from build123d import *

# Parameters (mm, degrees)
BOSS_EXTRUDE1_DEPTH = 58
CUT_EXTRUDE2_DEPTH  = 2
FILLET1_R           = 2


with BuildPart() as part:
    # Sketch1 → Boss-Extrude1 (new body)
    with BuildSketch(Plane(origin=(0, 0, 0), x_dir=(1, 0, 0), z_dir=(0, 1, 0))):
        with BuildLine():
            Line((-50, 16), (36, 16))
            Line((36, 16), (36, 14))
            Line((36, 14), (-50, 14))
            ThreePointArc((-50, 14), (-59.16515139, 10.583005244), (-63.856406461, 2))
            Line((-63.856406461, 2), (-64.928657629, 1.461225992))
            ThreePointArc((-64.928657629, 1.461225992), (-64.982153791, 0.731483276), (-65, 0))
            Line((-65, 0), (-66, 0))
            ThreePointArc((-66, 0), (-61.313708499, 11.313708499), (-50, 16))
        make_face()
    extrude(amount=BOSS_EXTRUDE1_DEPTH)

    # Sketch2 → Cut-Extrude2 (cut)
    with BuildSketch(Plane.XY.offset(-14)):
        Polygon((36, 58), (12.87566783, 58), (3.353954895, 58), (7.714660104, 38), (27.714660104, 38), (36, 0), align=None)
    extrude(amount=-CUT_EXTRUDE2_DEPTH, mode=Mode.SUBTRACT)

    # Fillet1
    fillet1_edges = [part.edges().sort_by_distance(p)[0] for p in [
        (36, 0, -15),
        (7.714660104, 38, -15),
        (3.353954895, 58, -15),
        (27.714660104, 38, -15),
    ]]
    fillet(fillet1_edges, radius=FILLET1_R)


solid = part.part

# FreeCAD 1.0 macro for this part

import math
import FreeCAD as App
import Part
import Sketcher

V = App.Vector
Q = App.Units.Quantity


def edges_at(feature, points):
    """Names of the edges that pass closest to the given points."""
    edges = feature.Shape.Edges
    near = lambda p: min(range(len(edges)), key=lambda i: edges[i].distToShape(Part.Vertex(*p))[0])
    return sorted({f"Edge{near(p) + 1}" for p in points})

doc = App.newDocument("Part")
body = doc.addObject("PartDesign::Body", "Body")

# Sketch on XZ plane
sketch1 = doc.addObject("Sketcher::SketchObject", "Sketch")
body.addObject(sketch1)
sketch1.AttachmentSupport = (doc.XZ_Plane, [""])
sketch1.MapMode = "FlatFace"
sketch1.addGeometry([
    Part.LineSegment(V(36, -16, 0), V(-50, -16, 0)),  # 0
    Part.ArcOfCircle(Part.Circle(V(-50, 0, 0), V(0, 0, 1), 16), math.radians(180), math.radians(270)),  # 1
    Part.LineSegment(V(-66, 0, 0), V(-65, 0, 0)),  # 2
    Part.ArcOfCircle(Part.Circle(V(-50, 0, 0), V(0, 0, 1), 15), math.radians(-180), math.radians(-174.409662)),  # 3
    Part.LineSegment(V(-64.928658, -1.461226, 0), V(-63.856406, -2, 0)),  # 4
    Part.ArcOfCircle(Part.Circle(V(-50, 0, 0), V(0, 0, 1), 14), math.radians(-171.786789), math.radians(-90)),  # 5
    Part.LineSegment(V(-50, -14, 0), V(36, -14, 0)),  # 6
    Part.LineSegment(V(36, -14, 0), V(36, -16, 0)),  # 7
], False)
sketch1.addConstraint([
    Sketcher.Constraint("Tangent", 0, 2, 1, 2),
    Sketcher.Constraint("Coincident", 1, 1, 2, 1),
    Sketcher.Constraint("Coincident", 2, 2, 3, 1),
    Sketcher.Constraint("Coincident", 3, 2, 4, 1),
    Sketcher.Constraint("Coincident", 4, 2, 5, 1),
    Sketcher.Constraint("Tangent", 5, 2, 6, 1),
    Sketcher.Constraint("Coincident", 6, 2, 7, 1),
    Sketcher.Constraint("Coincident", 7, 2, 0, 1),
    Sketcher.Constraint("Horizontal", 0),
    Sketcher.Constraint("Horizontal", 2),
    Sketcher.Constraint("Horizontal", 6),
    Sketcher.Constraint("Vertical", 7),
    Sketcher.Constraint("Coincident", 3, 3, 1, 3),
    Sketcher.Constraint("Coincident", 5, 3, 1, 3),
    Sketcher.Constraint("PointOnObject", 1, 3, -1),
    Sketcher.Constraint("PointOnObject", 1, 1, -1),
    Sketcher.Constraint("Radius", 1, Q("16 mm")),
    Sketcher.Constraint("Radius", 3, Q("15 mm")),
    Sketcher.Constraint("Radius", 5, Q("14 mm")),
    Sketcher.Constraint("DistanceX", 0, 2, 0, 1, Q("86 mm")),
    Sketcher.Constraint("DistanceX", 1, 3, -1, 1, Q("50 mm")),
    Sketcher.Constraint("DistanceY", 4, 2, -1, 1, Q("2 mm")),
    Sketcher.Constraint("Distance", 4, Q("1.2 mm")),
])
pad1 = doc.addObject("PartDesign::Pad", "Pad")
body.addObject(pad1)
pad1.Profile = sketch1
pad1.Length = 58
pad1.Reversed = True

# Sketch on XY plane
sketch2 = doc.addObject("Sketcher::SketchObject", "Sketch001")
body.addObject(sketch2)
sketch2.AttachmentSupport = (doc.XY_Plane, [""])
sketch2.MapMode = "FlatFace"
sketch2.AttachmentOffset = App.Placement(V(0, 0, -14), App.Rotation())
sketch2.addGeometry([
    Part.LineSegment(V(36, 58, 0), V(3.353955, 58, 0)),  # 0
    Part.LineSegment(V(3.353955, 58, 0), V(7.71466, 38, 0)),  # 1
    Part.LineSegment(V(7.71466, 38, 0), V(27.71466, 38, 0)),  # 2
    Part.LineSegment(V(27.71466, 38, 0), V(36, 0, 0)),  # 3
    Part.LineSegment(V(36, 0, 0), V(36, 58, 0)),  # 4
], False)
sketch2.addConstraint([
    Sketcher.Constraint("Coincident", 0, 2, 1, 1),
    Sketcher.Constraint("Coincident", 1, 2, 2, 1),
    Sketcher.Constraint("Coincident", 2, 2, 3, 1),
    Sketcher.Constraint("Coincident", 3, 2, 4, 1),
    Sketcher.Constraint("Coincident", 4, 2, 0, 1),
    Sketcher.Constraint("Horizontal", 0),
    Sketcher.Constraint("Horizontal", 2),
    Sketcher.Constraint("Vertical", 4),
    Sketcher.Constraint("PointOnObject", 3, 2, -1),
    Sketcher.Constraint("Parallel", 1, 3),
    Sketcher.Constraint("DistanceX", 2, 1, 2, 2, Q("20 mm")),
    Sketcher.Constraint("DistanceY", 4, 1, 4, 2, Q("58 mm")),
    Sketcher.Constraint("DistanceY", -1, 1, 1, 2, Q("38 mm")),
    Sketcher.Constraint("DistanceX", -1, 1, 3, 2, Q("36 mm")),
    Sketcher.Constraint("Angle", 1, Q("-77.7 deg")),
])
pocket1 = doc.addObject("PartDesign::Pocket", "Pocket")
body.addObject(pocket1)
pocket1.Profile = sketch2
pocket1.Length = 2
doc.recompute()

fillet = doc.addObject("PartDesign::Fillet", "Fillet")
body.addObject(fillet)
fillet.Base = (pocket1, edges_at(pocket1, [
    (36, 0, -15),
    (7.715, 38, -15),
    (3.354, 58, -15),
    (27.715, 38, -15),
]))
fillet.Radius = 2

doc.recompute()
